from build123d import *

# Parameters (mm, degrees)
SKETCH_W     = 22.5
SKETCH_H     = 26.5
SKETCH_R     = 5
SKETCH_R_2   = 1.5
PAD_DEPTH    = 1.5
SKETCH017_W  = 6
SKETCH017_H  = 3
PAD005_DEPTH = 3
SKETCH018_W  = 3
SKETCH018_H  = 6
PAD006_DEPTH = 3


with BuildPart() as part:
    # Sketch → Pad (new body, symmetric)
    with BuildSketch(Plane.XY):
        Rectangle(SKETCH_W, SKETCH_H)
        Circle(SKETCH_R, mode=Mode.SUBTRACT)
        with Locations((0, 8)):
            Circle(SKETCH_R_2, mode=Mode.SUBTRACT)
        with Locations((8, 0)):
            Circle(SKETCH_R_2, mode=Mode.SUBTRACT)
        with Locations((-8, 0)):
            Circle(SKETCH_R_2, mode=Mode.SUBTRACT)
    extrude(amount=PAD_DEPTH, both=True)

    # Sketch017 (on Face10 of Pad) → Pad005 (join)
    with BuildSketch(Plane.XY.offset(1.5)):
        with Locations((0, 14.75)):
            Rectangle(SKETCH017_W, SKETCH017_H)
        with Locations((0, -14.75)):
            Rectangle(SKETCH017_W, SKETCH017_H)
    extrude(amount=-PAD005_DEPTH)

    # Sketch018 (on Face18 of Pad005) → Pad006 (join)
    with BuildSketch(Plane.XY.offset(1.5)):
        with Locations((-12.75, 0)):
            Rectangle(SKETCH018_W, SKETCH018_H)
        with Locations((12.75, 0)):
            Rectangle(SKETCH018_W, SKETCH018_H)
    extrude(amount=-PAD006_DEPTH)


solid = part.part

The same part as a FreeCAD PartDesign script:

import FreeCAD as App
import Part
import Sketcher

doc = App.newDocument("Part")
body = doc.addObject("PartDesign::Body", "Body")

sketch1 = doc.addObject("Sketcher::SketchObject", "Sketch")
body.addObject(sketch1)
sketch1.AttachmentSupport = (doc.XY_Plane, [""])
sketch1.MapMode = "FlatFace"
sketch1.addGeometry([
    Part.LineSegment(App.Vector(-11.25, 13.25, 0), App.Vector(-11.25, -13.25, 0)),
    Part.LineSegment(App.Vector(-11.25, -13.25, 0), App.Vector(11.25, -13.25, 0)),
    Part.LineSegment(App.Vector(11.25, -13.25, 0), App.Vector(11.25, 13.25, 0)),
    Part.LineSegment(App.Vector(11.25, 13.25, 0), App.Vector(-11.25, 13.25, 0)),
    Part.Circle(App.Vector(-8, 0, 0), App.Vector(0, 0, 1), 1.5),
    Part.Circle(App.Vector(0, 0, 0), App.Vector(0, 0, 1), 5),
    Part.Circle(App.Vector(8, 0, 0), App.Vector(0, 0, 1), 1.5),
    Part.Circle(App.Vector(0, 8, 0), App.Vector(0, 0, 1), 1.5),
], False)
sketch1.addConstraint([
    Sketcher.Constraint("Coincident", 0, 2, 1, 1),
    Sketcher.Constraint("Coincident", 1, 2, 2, 1),
    Sketcher.Constraint("Coincident", 2, 2, 3, 1),
    Sketcher.Constraint("Coincident", 3, 2, 0, 1),
    Sketcher.Constraint("Vertical", 0),
    Sketcher.Constraint("Horizontal", 1),
    Sketcher.Constraint("Vertical", 2),
    Sketcher.Constraint("Horizontal", 3),
    Sketcher.Constraint("Coincident", 5, 3, -1, 1),
    Sketcher.Constraint("Equal", 4, 6),
    Sketcher.Constraint("Equal", 6, 7),
    Sketcher.Constraint("Symmetric", 4, 3, 6, 3, -1, 1),
    Sketcher.Constraint("Symmetric", 0, 2, 2, 2, -1, 1),
    Sketcher.Constraint("PointOnObject", 4, 3, -1),
    Sketcher.Constraint("PointOnObject", 7, 3, -2),
    Sketcher.Constraint("Diameter", 4, 3.0),
    Sketcher.Constraint("Diameter", 5, 10.0),
    Sketcher.Constraint("DistanceX", 1, 1, 1, 2, 22.5),
    Sketcher.Constraint("DistanceY", 0, 2, 0, 1, 26.5),
    Sketcher.Constraint("DistanceX", 4, 3, -1, 1, 8.0),
    Sketcher.Constraint("DistanceY", -1, 1, 7, 3, 8.0),
])
pad1 = doc.addObject("PartDesign::Pad", "Pad")
body.addObject(pad1)
pad1.Profile = sketch1
pad1.Length = 3
pad1.Midplane = True

sketch2 = doc.addObject("Sketcher::SketchObject", "Sketch001")
body.addObject(sketch2)
sketch2.AttachmentSupport = (doc.XY_Plane, [""])
sketch2.MapMode = "FlatFace"
sketch2.AttachmentOffset = App.Placement(App.Vector(0, 0, 1.5), App.Rotation())
sketch2.addGeometry([
    Part.LineSegment(App.Vector(-3, 16.25, 0), App.Vector(-3, 13.25, 0)),
    Part.LineSegment(App.Vector(-3, 13.25, 0), App.Vector(3, 13.25, 0)),
    Part.LineSegment(App.Vector(3, 13.25, 0), App.Vector(3, 16.25, 0)),
    Part.LineSegment(App.Vector(3, 16.25, 0), App.Vector(-3, 16.25, 0)),
    Part.LineSegment(App.Vector(-3, -13.25, 0), App.Vector(-3, -16.25, 0)),
    Part.LineSegment(App.Vector(-3, -16.25, 0), App.Vector(3, -16.25, 0)),
    Part.LineSegment(App.Vector(3, -16.25, 0), App.Vector(3, -13.25, 0)),
    Part.LineSegment(App.Vector(3, -13.25, 0), App.Vector(-3, -13.25, 0)),
], False)
sketch2.addConstraint([
    Sketcher.Constraint("Coincident", 0, 2, 1, 1),
    Sketcher.Constraint("Coincident", 1, 2, 2, 1),
    Sketcher.Constraint("Coincident", 2, 2, 3, 1),
    Sketcher.Constraint("Coincident", 3, 2, 0, 1),
    Sketcher.Constraint("Coincident", 4, 2, 5, 1),
    Sketcher.Constraint("Coincident", 5, 2, 6, 1),
    Sketcher.Constraint("Coincident", 6, 2, 7, 1),
    Sketcher.Constraint("Coincident", 7, 2, 4, 1),
    Sketcher.Constraint("Vertical", 0),
    Sketcher.Constraint("Horizontal", 1),
    Sketcher.Constraint("Vertical", 2),
    Sketcher.Constraint("Horizontal", 3),
    Sketcher.Constraint("Vertical", 4),
    Sketcher.Constraint("Horizontal", 5),
    Sketcher.Constraint("Vertical", 6),
    Sketcher.Constraint("Horizontal", 7),
    Sketcher.Constraint("Symmetric", 2, 2, 4, 2, -1, 1),
    Sketcher.Constraint("Symmetric", 0, 2, 6, 2, -1, 1),
    Sketcher.Constraint("Vertical", 3, 2, 4, 2),
    Sketcher.Constraint("DistanceX", 1, 1, 1, 2, 6.0),
    Sketcher.Constraint("DistanceY", 0, 2, 0, 1, 3.0),
    Sketcher.Constraint("DistanceY", 4, 2, 0, 2, 29.5),
])
pad2 = doc.addObject("PartDesign::Pad", "Pad001")
body.addObject(pad2)
pad2.Profile = sketch2
pad2.Length = 3
pad2.Reversed = True

sketch3 = doc.addObject("Sketcher::SketchObject", "Sketch002")
body.addObject(sketch3)
sketch3.AttachmentSupport = (doc.XY_Plane, [""])
sketch3.MapMode = "FlatFace"
sketch3.AttachmentOffset = App.Placement(App.Vector(0, 0, 1.5), App.Rotation())
sketch3.addGeometry([
    Part.LineSegment(App.Vector(-14.25, 3, 0), App.Vector(-14.25, -3, 0)),
    Part.LineSegment(App.Vector(-14.25, -3, 0), App.Vector(-11.25, -3, 0)),
    Part.LineSegment(App.Vector(-11.25, -3, 0), App.Vector(-11.25, 3, 0)),
    Part.LineSegment(App.Vector(-11.25, 3, 0), App.Vector(-14.25, 3, 0)),
    Part.LineSegment(App.Vector(11.25, 3, 0), App.Vector(11.25, -3, 0)),
    Part.LineSegment(App.Vector(11.25, -3, 0), App.Vector(14.25, -3, 0)),
    Part.LineSegment(App.Vector(14.25, -3, 0), App.Vector(14.25, 3, 0)),
    Part.LineSegment(App.Vector(14.25, 3, 0), App.Vector(11.25, 3, 0)),
], False)
sketch3.addConstraint([
    Sketcher.Constraint("Coincident", 0, 2, 1, 1),
    Sketcher.Constraint("Coincident", 1, 2, 2, 1),
    Sketcher.Constraint("Coincident", 2, 2, 3, 1),
    Sketcher.Constraint("Coincident", 3, 2, 0, 1),
    Sketcher.Constraint("Coincident", 4, 2, 5, 1),
    Sketcher.Constraint("Coincident", 5, 2, 6, 1),
    Sketcher.Constraint("Coincident", 6, 2, 7, 1),
    Sketcher.Constraint("Coincident", 7, 2, 4, 1),
    Sketcher.Constraint("Vertical", 0),
    Sketcher.Constraint("Horizontal", 1),
    Sketcher.Constraint("Vertical", 2),
    Sketcher.Constraint("Horizontal", 3),
    Sketcher.Constraint("Vertical", 4),
    Sketcher.Constraint("Horizontal", 5),
    Sketcher.Constraint("Vertical", 6),
    Sketcher.Constraint("Horizontal", 7),
    Sketcher.Constraint("Symmetric", 2, 2, 4, 2, -1, 1),
    Sketcher.Constraint("Symmetric", 0, 2, 6, 2, -1, 1),
    Sketcher.Constraint("Horizontal", 1, 2, 4, 2),
    Sketcher.Constraint("DistanceX", 1, 1, 1, 2, 3.0),
    Sketcher.Constraint("DistanceY", 0, 2, 0, 1, 6.0),
    Sketcher.Constraint("DistanceX", 1, 2, 4, 2, 22.5),
])
pad3 = doc.addObject("PartDesign::Pad", "Pad002")
body.addObject(pad3)
pad3.Profile = sketch3
pad3.Length = 3
pad3.Reversed = True

doc.recompute()
